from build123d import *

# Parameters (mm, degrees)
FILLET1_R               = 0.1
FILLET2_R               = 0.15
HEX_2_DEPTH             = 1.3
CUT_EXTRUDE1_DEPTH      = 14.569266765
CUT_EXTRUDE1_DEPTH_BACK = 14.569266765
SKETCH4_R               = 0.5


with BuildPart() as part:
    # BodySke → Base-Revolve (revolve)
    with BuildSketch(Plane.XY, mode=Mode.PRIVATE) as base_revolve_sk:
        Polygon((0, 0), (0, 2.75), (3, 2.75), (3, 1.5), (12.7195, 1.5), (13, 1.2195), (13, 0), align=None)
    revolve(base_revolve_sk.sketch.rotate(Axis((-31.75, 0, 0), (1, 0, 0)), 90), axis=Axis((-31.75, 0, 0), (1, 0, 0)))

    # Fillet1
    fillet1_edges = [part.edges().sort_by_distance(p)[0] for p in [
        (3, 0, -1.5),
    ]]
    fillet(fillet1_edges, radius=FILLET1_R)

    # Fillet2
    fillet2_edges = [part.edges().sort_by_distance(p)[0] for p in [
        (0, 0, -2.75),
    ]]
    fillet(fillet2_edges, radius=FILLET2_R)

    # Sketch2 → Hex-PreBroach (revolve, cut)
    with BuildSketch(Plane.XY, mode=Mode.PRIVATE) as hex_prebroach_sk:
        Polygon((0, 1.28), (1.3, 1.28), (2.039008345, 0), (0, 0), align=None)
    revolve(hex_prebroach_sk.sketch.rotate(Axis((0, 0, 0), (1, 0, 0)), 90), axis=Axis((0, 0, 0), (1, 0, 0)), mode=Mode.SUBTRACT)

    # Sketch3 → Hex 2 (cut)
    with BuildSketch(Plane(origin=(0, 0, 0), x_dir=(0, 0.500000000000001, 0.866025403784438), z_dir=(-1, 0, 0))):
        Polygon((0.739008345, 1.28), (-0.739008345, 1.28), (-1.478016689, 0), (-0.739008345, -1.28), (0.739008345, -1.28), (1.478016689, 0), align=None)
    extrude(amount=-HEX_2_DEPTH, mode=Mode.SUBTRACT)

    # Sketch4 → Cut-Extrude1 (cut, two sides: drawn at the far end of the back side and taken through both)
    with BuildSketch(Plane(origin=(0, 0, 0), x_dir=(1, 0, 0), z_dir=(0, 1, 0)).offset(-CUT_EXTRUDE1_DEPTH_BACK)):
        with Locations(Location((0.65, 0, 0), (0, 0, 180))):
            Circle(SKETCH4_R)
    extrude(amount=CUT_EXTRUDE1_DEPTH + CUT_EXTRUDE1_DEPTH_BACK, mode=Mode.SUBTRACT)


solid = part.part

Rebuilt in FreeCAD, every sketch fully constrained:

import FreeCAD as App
import Part
import Sketcher
Q = App.Units.Quantity


def edges_at(feature, points):
    """Names of the edges that pass closest to the given points."""
    edges = feature.Shape.Edges
    near = lambda p: min(range(len(edges)), key=lambda i: edges[i].distToShape(Part.Vertex(*p))[0])
    return sorted({f"Edge{near(p) + 1}" for p in points})

doc = App.newDocument("Part")
body = doc.addObject("PartDesign::Body", "Body")

sketch1 = body.newObject("Sketcher::SketchObject", "Sketch")
sketch1.AttachmentSupport = (doc.getObject("XY_Plane"), [""])
sketch1.MapMode = "FlatFace"
sketch1.addGeometry(Part.LineSegment(App.Vector(0, 2.75, 0), App.Vector(0, 0, 0)), False)
sketch1.addGeometry(Part.LineSegment(App.Vector(0, 0, 0), App.Vector(13, 0, 0)), False)
sketch1.addGeometry(Part.LineSegment(App.Vector(13, 0, 0), App.Vector(13, 1.22, 0)), False)
sketch1.addGeometry(Part.LineSegment(App.Vector(13, 1.22, 0), App.Vector(12.72, 1.5, 0)), False)
sketch1.addGeometry(Part.LineSegment(App.Vector(12.72, 1.5, 0), App.Vector(3, 1.5, 0)), False)
sketch1.addGeometry(Part.LineSegment(App.Vector(3, 1.5, 0), App.Vector(3, 2.75, 0)), False)
sketch1.addGeometry(Part.LineSegment(App.Vector(3, 2.75, 0), App.Vector(0, 2.75, 0)), False)
sketch1.addConstraint(Sketcher.Constraint("Coincident", 0, 2, 1, 1))
sketch1.addConstraint(Sketcher.Constraint("Coincident", 1, 2, 2, 1))
sketch1.addConstraint(Sketcher.Constraint("Coincident", 2, 2, 3, 1))
sketch1.addConstraint(Sketcher.Constraint("Coincident", 3, 2, 4, 1))
sketch1.addConstraint(Sketcher.Constraint("Coincident", 4, 2, 5, 1))
sketch1.addConstraint(Sketcher.Constraint("Coincident", 5, 2, 6, 1))
sketch1.addConstraint(Sketcher.Constraint("Coincident", 6, 2, 0, 1))
sketch1.addConstraint(Sketcher.Constraint("Vertical", 0))
sketch1.addConstraint(Sketcher.Constraint("Horizontal", 1))
sketch1.addConstraint(Sketcher.Constraint("Vertical", 2))
sketch1.addConstraint(Sketcher.Constraint("Horizontal", 4))
sketch1.addConstraint(Sketcher.Constraint("Vertical", 5))
sketch1.addConstraint(Sketcher.Constraint("Horizontal", 6))
sketch1.addConstraint(Sketcher.Constraint("Coincident", 0, 2, -1, 1))
sketch1.addConstraint(Sketcher.Constraint("DistanceX", 1, 1, 1, 2, 13.0))
sketch1.addConstraint(Sketcher.Constraint("DistanceX", 6, 2, 6, 1, 3.0))
sketch1.addConstraint(Sketcher.Constraint("Angle", 3, Q("135 deg")))
sketch1.addConstraint(Sketcher.Constraint("DistanceY", 0, 2, 0, 1, 2.75))
sketch1.addConstraint(Sketcher.Constraint("DistanceY", 5, 1, 5, 2, 1.25))
sketch1.addConstraint(Sketcher.Constraint("DistanceX", 4, 2, 4, 1, 9.7195))
revolution = body.newObject("PartDesign::Revolution", "Revolution")
revolution.Profile = sketch1
revolution.ReferenceAxis = (sketch1, ["H_Axis"])
revolution.Angle = 360
doc.recompute()

fillet = body.newObject("PartDesign::Fillet", "Fillet")
fillet.Base = (revolution, edges_at(revolution, [(3, 0, -1.5)]))
fillet.Radius = 0.1
doc.recompute()

fillet2 = body.newObject("PartDesign::Fillet", "Fillet001")
fillet2.Base = (fillet, edges_at(fillet, [(0, 0, -2.75)]))
fillet2.Radius = 0.15

sketch2 = body.newObject("Sketcher::SketchObject", "Sketch001")
sketch2.AttachmentSupport = (doc.getObject("XY_Plane"), [""])
sketch2.MapMode = "FlatFace"
sketch2.addGeometry(Part.LineSegment(App.Vector(1.3, 1.3, 0), App.Vector(0, 1.3, 0)), False)
sketch2.addGeometry(Part.LineSegment(App.Vector(0, 1.3, 0), App.Vector(0, 0, 0)), False)
sketch2.addGeometry(Part.LineSegment(App.Vector(0, 0, 0), App.Vector(2, 0, 0)), False)
sketch2.addGeometry(Part.LineSegment(App.Vector(2, 0, 0), App.Vector(1.3, 1.3, 0)), False)
sketch2.addConstraint(Sketcher.Constraint("Coincident", 0, 2, 1, 1))
sketch2.addConstraint(Sketcher.Constraint("Coincident", 1, 2, 2, 1))
sketch2.addConstraint(Sketcher.Constraint("Coincident", 2, 2, 3, 1))
sketch2.addConstraint(Sketcher.Constraint("Coincident", 3, 2, 0, 1))
sketch2.addConstraint(Sketcher.Constraint("Horizontal", 0))
sketch2.addConstraint(Sketcher.Constraint("Vertical", 1))
sketch2.addConstraint(Sketcher.Constraint("Horizontal", 2))
sketch2.addConstraint(Sketcher.Constraint("Coincident", 1, 2, -1, 1))
sketch2.addConstraint(Sketcher.Constraint("Angle", 3, Q("120 deg")))
sketch2.addConstraint(Sketcher.Constraint("DistanceX", 0, 2, 0, 1, 1.3))
sketch2.addConstraint(Sketcher.Constraint("DistanceY", 1, 2, 1, 1, 1.28))
groove = body.newObject("PartDesign::Groove", "Groove")
groove.Profile = sketch2
groove.ReferenceAxis = (sketch2, ["H_Axis"])
groove.Angle = 360

sketch3 = body.newObject("Sketcher::SketchObject", "Sketch002")
sketch3.AttachmentSupport = (doc.getObject("YZ_Plane"), [""])
sketch3.MapMode = "FlatFace"
sketch3.addGeometry(Part.LineSegment(App.Vector(1.5, 0, 0), App.Vector(0.7, -1.3, 0)), False)
sketch3.addGeometry(Part.LineSegment(App.Vector(0.7, -1.3, 0), App.Vector(-0.7, -1.3, 0)), False)
sketch3.addGeometry(Part.LineSegment(App.Vector(-0.7, -1.3, 0), App.Vector(-1.5, 0, 0)), False)
sketch3.addGeometry(Part.LineSegment(App.Vector(-1.5, 0, 0), App.Vector(-0.7, 1.3, 0)), False)
sketch3.addGeometry(Part.LineSegment(App.Vector(-0.7, 1.3, 0), App.Vector(0.7, 1.3, 0)), False)
sketch3.addGeometry(Part.LineSegment(App.Vector(0.7, 1.3, 0), App.Vector(1.5, 0, 0)), False)
sketch3.addConstraint(Sketcher.Constraint("Coincident", 0, 2, 1, 1))
sketch3.addConstraint(Sketcher.Constraint("Coincident", 1, 2, 2, 1))
sketch3.addConstraint(Sketcher.Constraint("Coincident", 2, 2, 3, 1))
sketch3.addConstraint(Sketcher.Constraint("Coincident", 3, 2, 4, 1))
sketch3.addConstraint(Sketcher.Constraint("Coincident", 4, 2, 5, 1))
sketch3.addConstraint(Sketcher.Constraint("Coincident", 5, 2, 0, 1))
sketch3.addConstraint(Sketcher.Constraint("Horizontal", 1))
sketch3.addConstraint(Sketcher.Constraint("Horizontal", 4))
sketch3.addConstraint(Sketcher.Constraint("Symmetric", 0, 2, 3, 2, -1, 1))
sketch3.addConstraint(Sketcher.Constraint("Symmetric", 2, 2, 5, 2, -1, 1))
sketch3.addConstraint(Sketcher.Constraint("PointOnObject", 2, 2, -1))
sketch3.addConstraint(Sketcher.Constraint("Parallel", 2, 5))
sketch3.addConstraint(Sketcher.Constraint("Vertical", 1, 2, 3, 2))
sketch3.addConstraint(Sketcher.Constraint("Angle", 0, Q("-120 deg")))
sketch3.addConstraint(Sketcher.Constraint("DistanceY", 0, 2, -1, 1, 1.28))
sketch3.addConstraint(Sketcher.Constraint("DistanceX", 1, 2, 1, 1, 1.478017))
pocket1 = body.newObject("PartDesign::Pocket", "Pocket")
pocket1.Profile = sketch3
pocket1.Length = 1.3
pocket1.Reversed = True

sketch4 = body.newObject("Sketcher::SketchObject", "Sketch003")
sketch4.AttachmentSupport = (doc.getObject("XZ_Plane"), [""])
sketch4.MapMode = "FlatFace"
sketch4.addGeometry(Part.Circle(App.Vector(0.7, 0, 0), App.Vector(0, 0, 1), 0.5), False)
sketch4.addConstraint(Sketcher.Constraint("PointOnObject", 0, 3, -1))
sketch4.addConstraint(Sketcher.Constraint("Diameter", 0, 1.0))
sketch4.addConstraint(Sketcher.Constraint("DistanceX", -1, 1, 0, 3, 0.65))
pocket2 = body.newObject("PartDesign::Pocket", "Pocket001")
pocket2.Profile = sketch4
pocket2.Type = "ThroughAll"
pocket2.Midplane = True

doc.recompute()
